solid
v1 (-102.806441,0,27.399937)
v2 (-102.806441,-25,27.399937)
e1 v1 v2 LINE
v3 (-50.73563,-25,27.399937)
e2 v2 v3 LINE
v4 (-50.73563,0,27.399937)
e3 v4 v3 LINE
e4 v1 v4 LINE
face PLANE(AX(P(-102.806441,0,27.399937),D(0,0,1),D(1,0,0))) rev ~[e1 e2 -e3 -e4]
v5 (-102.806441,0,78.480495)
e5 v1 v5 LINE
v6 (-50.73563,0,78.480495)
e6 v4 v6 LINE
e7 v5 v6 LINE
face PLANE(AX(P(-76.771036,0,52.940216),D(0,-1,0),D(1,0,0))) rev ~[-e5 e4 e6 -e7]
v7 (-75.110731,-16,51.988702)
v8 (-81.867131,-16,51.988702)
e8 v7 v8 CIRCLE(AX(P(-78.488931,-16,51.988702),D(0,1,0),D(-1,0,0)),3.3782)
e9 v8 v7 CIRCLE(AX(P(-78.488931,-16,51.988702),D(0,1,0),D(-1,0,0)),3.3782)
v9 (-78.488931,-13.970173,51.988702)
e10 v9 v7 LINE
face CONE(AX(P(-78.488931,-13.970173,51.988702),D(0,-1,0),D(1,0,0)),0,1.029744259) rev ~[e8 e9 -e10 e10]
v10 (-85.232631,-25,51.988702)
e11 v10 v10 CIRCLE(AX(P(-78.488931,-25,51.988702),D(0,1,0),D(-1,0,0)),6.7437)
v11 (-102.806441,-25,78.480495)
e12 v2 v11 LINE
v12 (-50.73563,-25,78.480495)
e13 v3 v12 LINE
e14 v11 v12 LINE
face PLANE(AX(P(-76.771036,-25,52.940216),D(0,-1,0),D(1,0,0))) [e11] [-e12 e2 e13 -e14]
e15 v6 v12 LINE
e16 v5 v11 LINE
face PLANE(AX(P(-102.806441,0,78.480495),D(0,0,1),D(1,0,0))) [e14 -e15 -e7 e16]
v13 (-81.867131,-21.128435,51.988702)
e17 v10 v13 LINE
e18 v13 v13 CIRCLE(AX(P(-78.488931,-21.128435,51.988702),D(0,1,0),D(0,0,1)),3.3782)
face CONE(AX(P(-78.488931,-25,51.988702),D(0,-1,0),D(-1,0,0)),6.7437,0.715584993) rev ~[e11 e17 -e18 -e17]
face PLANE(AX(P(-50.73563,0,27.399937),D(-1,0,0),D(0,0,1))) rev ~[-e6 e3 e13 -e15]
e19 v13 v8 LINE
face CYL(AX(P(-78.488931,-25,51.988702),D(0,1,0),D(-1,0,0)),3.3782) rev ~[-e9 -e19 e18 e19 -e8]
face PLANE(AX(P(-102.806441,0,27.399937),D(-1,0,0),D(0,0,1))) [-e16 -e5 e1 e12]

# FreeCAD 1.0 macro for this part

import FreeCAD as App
import Part
import Sketcher
Q = App.Units.Quantity

doc = App.newDocument("Part")
body = doc.addObject("PartDesign::Body", "Body")

sketch1 = body.newObject("Sketcher::SketchObject", "Sketch")
sketch1.AttachmentSupport = (doc.getObject("XZ_Plane"), [""])
sketch1.MapMode = "FlatFace"
sketch1.addGeometry([
    Part.LineSegment(App.Vector(-103, 78, 0), App.Vector(-103, 27, 0)),
    Part.LineSegment(App.Vector(-103, 27, 0), App.Vector(-51, 27, 0)),
    Part.LineSegment(App.Vector(-51, 27, 0), App.Vector(-51, 78, 0)),
    Part.LineSegment(App.Vector(-51, 78, 0), App.Vector(-103, 78, 0)),
], False)
sketch1.addConstraint([
    Sketcher.Constraint("Coincident", 0, 2, 1, 1),
    Sketcher.Constraint("Coincident", 1, 2, 2, 1),
    Sketcher.Constraint("Coincident", 2, 2, 3, 1),
    Sketcher.Constraint("Coincident", 3, 2, 0, 1),
    Sketcher.Constraint("Vertical", 0),
    Sketcher.Constraint("Horizontal", 1),
    Sketcher.Constraint("Vertical", 2),
    Sketcher.Constraint("Horizontal", 3),
    Sketcher.Constraint("DistanceX", 1, 1, 1, 2, Q("52.070811 mm")),
    Sketcher.Constraint("DistanceY", 0, 2, 0, 1, Q("51.080558 mm")),
    Sketcher.Constraint("DistanceX", 0, 2, -1, 1, Q("102.806441 mm")),
    Sketcher.Constraint("DistanceY", -1, 1, 0, 2, Q("27.399937 mm")),
])
pad1 = body.newObject("PartDesign::Pad", "Pad")
pad1.Profile = sketch1
pad1.Length = 25

sketch2 = body.newObject("Sketcher::SketchObject", "Sketch001")
sketch2.AttachmentSupport = (doc.getObject("XZ_Plane"), [""])
sketch2.MapMode = "FlatFace"
sketch2.AttachmentOffset = App.Placement(App.Vector(0, 0, 25), App.Rotation())
sketch2.addGeometry(Part.Circle(App.Vector(-78.5, 52, 0), App.Vector(0, 0, 1), 3.4), False)
sketch2.addConstraint([
    Sketcher.Constraint("Diameter", 0, Q("6.7564 mm")),
    Sketcher.Constraint("DistanceX", 0, 3, -1, 1, Q("78.488931 mm")),
    Sketcher.Constraint("DistanceY", -1, 1, 0, 3, Q("51.988702 mm")),
])
doc.recompute()
hole = body.newObject("PartDesign::Hole", "Hole")
hole.Profile = sketch2
hole.ThreadType = "None"
hole.Diameter = 6.7564
hole.DepthType = "Dimension"
hole.Depth = 9
hole.DrillPoint = "Angled"
hole.DrillPointAngle = 118
hole.HoleCutType = "Countersink"
hole.HoleCutDiameter = 13.4874
hole.HoleCutCountersinkAngle = 82

doc.recompute()
